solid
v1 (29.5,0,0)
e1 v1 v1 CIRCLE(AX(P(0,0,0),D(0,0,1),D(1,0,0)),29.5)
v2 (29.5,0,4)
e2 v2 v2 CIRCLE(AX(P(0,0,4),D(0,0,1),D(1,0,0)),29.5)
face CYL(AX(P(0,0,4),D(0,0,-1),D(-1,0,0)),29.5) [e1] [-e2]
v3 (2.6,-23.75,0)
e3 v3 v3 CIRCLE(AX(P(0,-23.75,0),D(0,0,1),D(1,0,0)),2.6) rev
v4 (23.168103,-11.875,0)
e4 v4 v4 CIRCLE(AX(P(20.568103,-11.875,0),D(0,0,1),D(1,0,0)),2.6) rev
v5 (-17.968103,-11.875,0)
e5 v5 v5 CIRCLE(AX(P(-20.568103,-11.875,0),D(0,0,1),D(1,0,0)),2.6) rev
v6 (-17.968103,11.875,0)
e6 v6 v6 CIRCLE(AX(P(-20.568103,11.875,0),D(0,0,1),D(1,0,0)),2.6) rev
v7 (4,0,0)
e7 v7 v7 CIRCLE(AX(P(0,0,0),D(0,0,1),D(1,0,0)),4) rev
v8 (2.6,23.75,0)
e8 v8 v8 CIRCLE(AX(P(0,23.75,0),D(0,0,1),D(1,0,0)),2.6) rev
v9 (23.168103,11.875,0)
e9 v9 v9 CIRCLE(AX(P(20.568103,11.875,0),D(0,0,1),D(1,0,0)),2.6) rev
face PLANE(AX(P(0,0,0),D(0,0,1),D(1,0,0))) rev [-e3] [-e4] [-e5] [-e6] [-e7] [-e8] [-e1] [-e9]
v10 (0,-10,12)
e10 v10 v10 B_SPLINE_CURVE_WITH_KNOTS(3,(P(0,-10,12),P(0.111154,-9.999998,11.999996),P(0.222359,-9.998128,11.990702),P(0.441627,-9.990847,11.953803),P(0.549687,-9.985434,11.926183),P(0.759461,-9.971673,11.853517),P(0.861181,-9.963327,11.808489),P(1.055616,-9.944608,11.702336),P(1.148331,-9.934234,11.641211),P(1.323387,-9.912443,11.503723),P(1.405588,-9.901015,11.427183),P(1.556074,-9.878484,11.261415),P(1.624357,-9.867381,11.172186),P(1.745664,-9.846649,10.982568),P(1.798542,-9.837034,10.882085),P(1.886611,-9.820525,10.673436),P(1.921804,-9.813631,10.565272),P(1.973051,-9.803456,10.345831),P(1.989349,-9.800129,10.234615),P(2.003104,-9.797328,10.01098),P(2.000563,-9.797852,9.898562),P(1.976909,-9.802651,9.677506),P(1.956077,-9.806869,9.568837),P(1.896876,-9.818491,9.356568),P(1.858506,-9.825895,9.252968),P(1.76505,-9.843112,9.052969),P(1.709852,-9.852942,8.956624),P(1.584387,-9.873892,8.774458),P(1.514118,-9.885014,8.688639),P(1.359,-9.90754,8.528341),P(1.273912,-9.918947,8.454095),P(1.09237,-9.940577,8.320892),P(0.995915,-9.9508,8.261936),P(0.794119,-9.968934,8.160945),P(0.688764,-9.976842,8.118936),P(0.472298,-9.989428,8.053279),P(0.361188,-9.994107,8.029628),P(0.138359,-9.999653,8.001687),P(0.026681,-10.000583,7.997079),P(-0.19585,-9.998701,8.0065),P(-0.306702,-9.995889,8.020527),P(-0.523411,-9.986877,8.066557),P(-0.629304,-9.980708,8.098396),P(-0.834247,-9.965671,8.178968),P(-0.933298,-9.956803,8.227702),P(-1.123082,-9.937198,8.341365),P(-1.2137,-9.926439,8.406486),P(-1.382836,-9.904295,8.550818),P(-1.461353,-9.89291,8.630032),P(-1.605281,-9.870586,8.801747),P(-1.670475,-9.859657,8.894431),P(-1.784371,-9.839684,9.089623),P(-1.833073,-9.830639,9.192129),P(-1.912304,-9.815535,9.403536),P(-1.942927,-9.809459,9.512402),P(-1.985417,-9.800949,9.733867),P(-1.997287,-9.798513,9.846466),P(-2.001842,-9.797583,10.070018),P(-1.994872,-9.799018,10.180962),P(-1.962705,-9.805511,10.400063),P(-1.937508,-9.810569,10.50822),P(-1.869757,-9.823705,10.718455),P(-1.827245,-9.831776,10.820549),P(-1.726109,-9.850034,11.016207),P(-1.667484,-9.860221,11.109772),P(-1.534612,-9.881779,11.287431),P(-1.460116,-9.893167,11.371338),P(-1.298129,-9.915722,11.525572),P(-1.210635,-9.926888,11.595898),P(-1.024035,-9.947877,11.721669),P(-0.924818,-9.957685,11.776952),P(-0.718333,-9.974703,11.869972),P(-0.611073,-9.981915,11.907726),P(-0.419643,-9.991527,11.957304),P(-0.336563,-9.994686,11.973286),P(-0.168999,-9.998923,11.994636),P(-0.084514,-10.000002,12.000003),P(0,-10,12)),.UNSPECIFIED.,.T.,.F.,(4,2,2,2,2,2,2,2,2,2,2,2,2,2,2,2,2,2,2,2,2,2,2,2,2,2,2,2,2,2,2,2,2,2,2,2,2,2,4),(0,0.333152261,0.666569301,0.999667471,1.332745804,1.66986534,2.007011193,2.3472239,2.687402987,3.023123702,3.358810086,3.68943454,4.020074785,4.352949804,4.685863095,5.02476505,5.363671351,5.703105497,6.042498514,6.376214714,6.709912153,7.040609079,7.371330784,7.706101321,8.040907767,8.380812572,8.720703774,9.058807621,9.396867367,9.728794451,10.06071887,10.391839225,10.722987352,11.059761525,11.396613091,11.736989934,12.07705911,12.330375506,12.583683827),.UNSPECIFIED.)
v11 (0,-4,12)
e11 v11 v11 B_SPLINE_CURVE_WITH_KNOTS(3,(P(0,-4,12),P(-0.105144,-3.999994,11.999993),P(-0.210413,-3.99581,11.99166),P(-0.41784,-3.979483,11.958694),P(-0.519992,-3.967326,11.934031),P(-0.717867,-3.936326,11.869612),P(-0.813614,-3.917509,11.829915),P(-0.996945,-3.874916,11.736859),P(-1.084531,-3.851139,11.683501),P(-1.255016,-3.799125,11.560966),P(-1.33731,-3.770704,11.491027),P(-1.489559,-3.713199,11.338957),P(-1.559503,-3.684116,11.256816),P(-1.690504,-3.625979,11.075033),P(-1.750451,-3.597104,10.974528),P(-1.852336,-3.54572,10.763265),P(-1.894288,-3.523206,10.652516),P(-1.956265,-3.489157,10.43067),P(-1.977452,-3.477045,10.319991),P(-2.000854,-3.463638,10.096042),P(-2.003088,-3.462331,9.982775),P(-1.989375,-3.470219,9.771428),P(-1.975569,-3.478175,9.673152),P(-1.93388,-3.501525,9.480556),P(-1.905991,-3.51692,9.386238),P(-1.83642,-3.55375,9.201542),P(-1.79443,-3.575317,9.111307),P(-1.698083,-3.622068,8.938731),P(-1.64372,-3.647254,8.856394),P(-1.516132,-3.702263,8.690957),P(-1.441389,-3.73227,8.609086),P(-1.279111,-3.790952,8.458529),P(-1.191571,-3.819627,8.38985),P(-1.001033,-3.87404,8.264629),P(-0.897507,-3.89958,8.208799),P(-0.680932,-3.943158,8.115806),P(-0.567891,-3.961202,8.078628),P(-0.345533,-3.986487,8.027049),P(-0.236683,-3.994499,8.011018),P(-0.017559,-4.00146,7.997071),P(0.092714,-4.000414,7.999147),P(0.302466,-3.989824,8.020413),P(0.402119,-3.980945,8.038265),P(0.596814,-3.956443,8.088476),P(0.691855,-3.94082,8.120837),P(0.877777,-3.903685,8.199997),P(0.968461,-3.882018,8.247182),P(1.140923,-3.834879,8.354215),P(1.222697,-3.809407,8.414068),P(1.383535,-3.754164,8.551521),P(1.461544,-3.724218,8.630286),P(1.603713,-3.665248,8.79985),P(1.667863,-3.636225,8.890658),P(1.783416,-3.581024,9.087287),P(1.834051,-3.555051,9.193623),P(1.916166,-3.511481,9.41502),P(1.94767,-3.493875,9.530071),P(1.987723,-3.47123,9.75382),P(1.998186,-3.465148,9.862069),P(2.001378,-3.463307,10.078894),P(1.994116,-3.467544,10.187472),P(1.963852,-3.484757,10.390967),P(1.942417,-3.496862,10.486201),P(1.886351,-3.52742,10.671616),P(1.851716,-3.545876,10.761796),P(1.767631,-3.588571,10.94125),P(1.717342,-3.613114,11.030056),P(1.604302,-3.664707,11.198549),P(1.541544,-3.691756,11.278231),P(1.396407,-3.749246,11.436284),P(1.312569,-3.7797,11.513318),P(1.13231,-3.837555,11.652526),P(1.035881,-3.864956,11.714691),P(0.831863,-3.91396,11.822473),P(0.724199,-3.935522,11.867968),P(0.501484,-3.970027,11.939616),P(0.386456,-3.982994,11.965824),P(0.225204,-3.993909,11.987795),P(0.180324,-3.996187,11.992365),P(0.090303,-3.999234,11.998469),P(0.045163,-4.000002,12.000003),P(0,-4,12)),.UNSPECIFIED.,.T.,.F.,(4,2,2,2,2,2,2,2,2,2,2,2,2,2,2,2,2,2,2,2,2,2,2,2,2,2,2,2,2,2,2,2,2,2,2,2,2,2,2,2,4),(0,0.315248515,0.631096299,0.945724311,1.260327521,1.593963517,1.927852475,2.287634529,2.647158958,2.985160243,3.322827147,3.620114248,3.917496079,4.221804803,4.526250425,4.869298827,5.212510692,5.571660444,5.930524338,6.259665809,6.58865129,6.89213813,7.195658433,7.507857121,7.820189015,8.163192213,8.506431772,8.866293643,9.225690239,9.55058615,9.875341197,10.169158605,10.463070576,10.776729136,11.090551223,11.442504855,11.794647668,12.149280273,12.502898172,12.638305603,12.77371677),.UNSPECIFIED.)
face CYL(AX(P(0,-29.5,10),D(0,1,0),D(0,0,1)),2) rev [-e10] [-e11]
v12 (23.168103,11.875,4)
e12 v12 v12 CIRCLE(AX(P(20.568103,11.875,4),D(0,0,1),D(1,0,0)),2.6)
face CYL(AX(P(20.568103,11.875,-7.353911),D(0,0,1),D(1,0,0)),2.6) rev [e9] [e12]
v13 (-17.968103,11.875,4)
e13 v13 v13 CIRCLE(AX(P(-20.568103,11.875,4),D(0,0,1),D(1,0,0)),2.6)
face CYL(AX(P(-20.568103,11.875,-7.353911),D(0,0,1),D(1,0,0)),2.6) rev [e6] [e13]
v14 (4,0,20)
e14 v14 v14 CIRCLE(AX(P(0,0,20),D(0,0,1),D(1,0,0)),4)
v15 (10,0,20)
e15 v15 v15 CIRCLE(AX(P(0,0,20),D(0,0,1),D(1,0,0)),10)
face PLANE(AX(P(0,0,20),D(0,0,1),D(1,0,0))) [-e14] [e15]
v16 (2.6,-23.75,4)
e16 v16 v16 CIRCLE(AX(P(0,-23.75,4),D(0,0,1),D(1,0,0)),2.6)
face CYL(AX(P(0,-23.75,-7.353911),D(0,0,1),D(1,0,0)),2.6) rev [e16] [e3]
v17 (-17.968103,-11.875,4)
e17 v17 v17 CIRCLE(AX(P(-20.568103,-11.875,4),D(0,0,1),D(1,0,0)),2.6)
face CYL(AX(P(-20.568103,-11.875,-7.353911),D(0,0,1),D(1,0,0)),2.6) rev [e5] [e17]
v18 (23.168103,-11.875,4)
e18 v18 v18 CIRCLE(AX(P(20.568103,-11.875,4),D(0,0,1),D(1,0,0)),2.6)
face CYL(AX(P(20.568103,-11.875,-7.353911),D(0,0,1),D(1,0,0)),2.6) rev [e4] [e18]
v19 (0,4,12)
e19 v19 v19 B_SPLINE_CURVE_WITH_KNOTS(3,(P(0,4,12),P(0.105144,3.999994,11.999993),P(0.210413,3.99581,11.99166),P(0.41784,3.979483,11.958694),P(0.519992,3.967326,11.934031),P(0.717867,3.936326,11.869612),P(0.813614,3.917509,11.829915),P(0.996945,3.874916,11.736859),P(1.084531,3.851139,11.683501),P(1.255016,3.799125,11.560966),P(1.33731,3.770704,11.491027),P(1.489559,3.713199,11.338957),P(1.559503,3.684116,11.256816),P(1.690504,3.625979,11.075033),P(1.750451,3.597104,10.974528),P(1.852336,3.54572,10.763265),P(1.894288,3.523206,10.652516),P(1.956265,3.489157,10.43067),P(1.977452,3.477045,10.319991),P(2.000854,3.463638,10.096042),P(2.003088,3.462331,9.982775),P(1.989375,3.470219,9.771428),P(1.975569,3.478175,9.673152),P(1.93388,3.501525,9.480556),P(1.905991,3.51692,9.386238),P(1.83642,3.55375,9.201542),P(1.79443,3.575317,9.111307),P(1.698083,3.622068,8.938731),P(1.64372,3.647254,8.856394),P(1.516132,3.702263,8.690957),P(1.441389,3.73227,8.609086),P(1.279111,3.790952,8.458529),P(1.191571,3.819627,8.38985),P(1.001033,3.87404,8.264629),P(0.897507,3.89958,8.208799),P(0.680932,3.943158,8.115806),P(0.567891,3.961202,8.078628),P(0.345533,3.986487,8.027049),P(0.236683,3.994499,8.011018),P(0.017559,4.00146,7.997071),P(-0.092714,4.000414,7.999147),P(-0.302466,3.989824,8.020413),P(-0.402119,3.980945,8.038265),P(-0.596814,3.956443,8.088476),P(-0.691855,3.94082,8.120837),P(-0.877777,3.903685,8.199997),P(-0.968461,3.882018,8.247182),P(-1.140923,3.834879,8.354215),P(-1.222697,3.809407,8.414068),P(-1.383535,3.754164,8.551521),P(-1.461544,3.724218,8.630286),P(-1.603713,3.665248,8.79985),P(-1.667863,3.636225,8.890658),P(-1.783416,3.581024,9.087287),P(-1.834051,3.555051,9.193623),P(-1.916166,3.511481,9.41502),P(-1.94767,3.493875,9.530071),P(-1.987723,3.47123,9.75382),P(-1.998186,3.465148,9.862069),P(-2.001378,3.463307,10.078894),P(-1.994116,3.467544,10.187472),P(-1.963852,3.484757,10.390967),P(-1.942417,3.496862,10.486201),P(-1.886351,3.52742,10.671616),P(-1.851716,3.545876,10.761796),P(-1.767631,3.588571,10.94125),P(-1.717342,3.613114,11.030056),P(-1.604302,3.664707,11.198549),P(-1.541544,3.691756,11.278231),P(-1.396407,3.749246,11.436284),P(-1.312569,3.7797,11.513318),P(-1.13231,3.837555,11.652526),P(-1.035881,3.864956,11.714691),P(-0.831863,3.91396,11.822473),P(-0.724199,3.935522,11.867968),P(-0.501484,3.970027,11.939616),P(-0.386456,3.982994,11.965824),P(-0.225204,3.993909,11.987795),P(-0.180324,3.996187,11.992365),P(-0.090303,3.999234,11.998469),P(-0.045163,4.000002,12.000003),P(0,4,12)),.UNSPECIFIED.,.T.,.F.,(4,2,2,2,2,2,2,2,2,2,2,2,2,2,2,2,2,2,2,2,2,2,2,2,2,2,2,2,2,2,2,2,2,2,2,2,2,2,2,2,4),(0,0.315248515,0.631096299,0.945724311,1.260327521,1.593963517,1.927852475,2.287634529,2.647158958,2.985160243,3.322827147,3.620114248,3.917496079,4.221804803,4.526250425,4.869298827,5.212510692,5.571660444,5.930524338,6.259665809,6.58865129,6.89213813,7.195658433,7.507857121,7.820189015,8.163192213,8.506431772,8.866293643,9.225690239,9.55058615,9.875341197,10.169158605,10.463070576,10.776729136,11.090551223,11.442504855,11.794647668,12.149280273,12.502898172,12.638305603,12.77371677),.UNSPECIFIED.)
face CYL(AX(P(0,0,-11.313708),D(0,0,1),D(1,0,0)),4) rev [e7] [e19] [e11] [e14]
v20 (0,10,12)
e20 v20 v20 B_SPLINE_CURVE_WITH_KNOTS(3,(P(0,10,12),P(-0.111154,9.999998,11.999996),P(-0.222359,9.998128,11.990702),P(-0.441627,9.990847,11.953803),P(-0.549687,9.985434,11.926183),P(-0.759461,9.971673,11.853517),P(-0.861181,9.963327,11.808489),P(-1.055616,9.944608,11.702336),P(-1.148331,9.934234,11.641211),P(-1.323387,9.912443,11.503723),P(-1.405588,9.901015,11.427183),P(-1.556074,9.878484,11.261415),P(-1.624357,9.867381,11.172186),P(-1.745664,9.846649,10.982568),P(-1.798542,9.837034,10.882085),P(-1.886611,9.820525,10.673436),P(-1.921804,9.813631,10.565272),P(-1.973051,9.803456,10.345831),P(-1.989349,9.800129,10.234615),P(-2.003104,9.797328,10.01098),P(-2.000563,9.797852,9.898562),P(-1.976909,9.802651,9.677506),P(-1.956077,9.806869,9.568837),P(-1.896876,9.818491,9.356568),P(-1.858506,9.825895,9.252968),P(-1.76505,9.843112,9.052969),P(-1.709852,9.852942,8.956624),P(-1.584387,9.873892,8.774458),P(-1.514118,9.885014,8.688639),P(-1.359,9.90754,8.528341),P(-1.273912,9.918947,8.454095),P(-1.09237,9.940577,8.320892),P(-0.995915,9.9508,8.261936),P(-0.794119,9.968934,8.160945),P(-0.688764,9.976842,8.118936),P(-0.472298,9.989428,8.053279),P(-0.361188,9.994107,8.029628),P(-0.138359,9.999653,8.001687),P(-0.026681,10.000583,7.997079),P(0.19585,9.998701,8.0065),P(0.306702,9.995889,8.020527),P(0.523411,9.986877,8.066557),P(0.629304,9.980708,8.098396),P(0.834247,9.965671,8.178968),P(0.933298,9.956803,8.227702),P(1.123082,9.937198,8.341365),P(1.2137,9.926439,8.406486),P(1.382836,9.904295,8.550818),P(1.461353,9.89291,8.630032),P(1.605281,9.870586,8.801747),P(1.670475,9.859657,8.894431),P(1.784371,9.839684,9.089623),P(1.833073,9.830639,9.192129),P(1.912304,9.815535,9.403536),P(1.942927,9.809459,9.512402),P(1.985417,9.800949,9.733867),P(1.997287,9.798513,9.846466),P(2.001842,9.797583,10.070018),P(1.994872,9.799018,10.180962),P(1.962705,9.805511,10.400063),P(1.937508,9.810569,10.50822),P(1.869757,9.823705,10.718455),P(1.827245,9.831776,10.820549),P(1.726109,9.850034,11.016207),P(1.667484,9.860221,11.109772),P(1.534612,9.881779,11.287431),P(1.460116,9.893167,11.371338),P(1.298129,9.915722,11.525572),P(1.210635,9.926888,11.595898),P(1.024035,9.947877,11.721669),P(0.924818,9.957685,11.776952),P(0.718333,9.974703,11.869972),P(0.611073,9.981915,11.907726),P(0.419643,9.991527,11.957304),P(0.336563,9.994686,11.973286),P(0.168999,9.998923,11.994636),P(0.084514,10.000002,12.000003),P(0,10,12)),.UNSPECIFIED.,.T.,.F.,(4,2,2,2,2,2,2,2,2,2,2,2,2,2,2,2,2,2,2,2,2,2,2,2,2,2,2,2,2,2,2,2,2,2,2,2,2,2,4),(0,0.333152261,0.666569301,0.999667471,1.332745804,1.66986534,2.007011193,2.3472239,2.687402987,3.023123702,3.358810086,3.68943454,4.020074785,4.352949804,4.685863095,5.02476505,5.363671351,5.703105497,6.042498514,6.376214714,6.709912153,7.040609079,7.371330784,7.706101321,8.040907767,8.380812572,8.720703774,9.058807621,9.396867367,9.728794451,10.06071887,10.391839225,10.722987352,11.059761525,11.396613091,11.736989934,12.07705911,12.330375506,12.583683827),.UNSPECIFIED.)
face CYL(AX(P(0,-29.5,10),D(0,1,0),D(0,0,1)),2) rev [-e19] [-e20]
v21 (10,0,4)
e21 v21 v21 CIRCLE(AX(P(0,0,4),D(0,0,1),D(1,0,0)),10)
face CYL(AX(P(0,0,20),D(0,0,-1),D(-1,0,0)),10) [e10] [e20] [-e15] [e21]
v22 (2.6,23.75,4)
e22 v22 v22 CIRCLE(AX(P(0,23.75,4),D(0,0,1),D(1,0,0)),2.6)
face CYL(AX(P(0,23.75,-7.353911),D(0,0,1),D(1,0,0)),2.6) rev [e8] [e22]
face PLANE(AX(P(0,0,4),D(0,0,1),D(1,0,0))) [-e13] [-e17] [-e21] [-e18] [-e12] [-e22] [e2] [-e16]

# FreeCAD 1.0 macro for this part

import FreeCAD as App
import Part
import Sketcher

V = App.Vector

doc = App.newDocument("Part")
params = doc.addObject("Spreadsheet::Sheet", "Params")
for row, (alias, value) in enumerate([
    ("sketch1_diameter", "59 mm"),
    ("pad1_length", "4 mm"),
    ("sketch2_diameter", "20 mm"),
    ("pad2_length", "16 mm"),
    ("sketch3_diameter", "8 mm"),
    ("pocket1_length", "20 mm"),
    ("sketch4_diameter", "5.2 mm"),
    ("pocket2_length", "4 mm"),
    ("sketch5_diameter", "4 mm"),
], start=1):
    params.set(f"A{row}", alias)
    params.set(f"B{row}", "=" + value)
    params.setAlias(f"B{row}", alias)

body = doc.addObject("PartDesign::Body", "Body")

# Sketch on XY plane
sketch1 = doc.addObject("Sketcher::SketchObject", "Sketch")
body.addObject(sketch1)
sketch1.AttachmentSupport = (doc.XY_Plane, [""])
sketch1.MapMode = "FlatFace"
sketch1.addGeometry(Part.Circle(V(0, 0, 0), V(0, 0, 1), 29.5), False)
sketch1.addConstraint(Sketcher.Constraint("Coincident", 0, 3, -1, 1))
sketch1.addConstraint(Sketcher.Constraint("Diameter", 0, 59.0))
sketch1.setExpression("Constraints[1]", "Params.sketch1_diameter")
pad1 = doc.addObject("PartDesign::Pad", "Pad")
body.addObject(pad1)
pad1.Profile = sketch1
pad1.setExpression("Length", "Params.pad1_length")

# Sketch on XY plane
sketch2 = doc.addObject("Sketcher::SketchObject", "Sketch001")
body.addObject(sketch2)
sketch2.AttachmentSupport = (doc.XY_Plane, [""])
sketch2.MapMode = "FlatFace"
sketch2.AttachmentOffset = App.Placement(V(0, 0, 4), App.Rotation())
sketch2.addGeometry(Part.Circle(V(0, 0, 0), V(0, 0, 1), 10), False)
sketch2.addConstraint(Sketcher.Constraint("Coincident", 0, 3, -1, 1))
sketch2.addConstraint(Sketcher.Constraint("Diameter", 0, 20.0))
sketch2.setExpression("Constraints[1]", "Params.sketch2_diameter")
pad2 = doc.addObject("PartDesign::Pad", "Pad001")
body.addObject(pad2)
pad2.Profile = sketch2
pad2.setExpression("Length", "Params.pad2_length")

# Sketch on XY plane
sketch3 = doc.addObject("Sketcher::SketchObject", "Sketch002")
body.addObject(sketch3)
sketch3.AttachmentSupport = (doc.XY_Plane, [""])
sketch3.MapMode = "FlatFace"
sketch3.AttachmentOffset = App.Placement(V(0, 0, 20), App.Rotation())
sketch3.addGeometry(Part.Circle(V(0, 0, 0), V(0, 0, 1), 4), False)
sketch3.addConstraint(Sketcher.Constraint("Coincident", 0, 3, -1, 1))
sketch3.addConstraint(Sketcher.Constraint("Diameter", 0, 8.0))
sketch3.setExpression("Constraints[1]", "Params.sketch3_diameter")
pocket1 = doc.addObject("PartDesign::Pocket", "Pocket")
body.addObject(pocket1)
pocket1.Profile = sketch3
pocket1.setExpression("Length", "Params.pocket1_length")

# Sketch on XY plane
sketch4 = doc.addObject("Sketcher::SketchObject", "Sketch003")
body.addObject(sketch4)
sketch4.AttachmentSupport = (doc.XY_Plane, [""])
sketch4.MapMode = "FlatFace"
sketch4.AttachmentOffset = App.Placement(V(0, 0, 4), App.Rotation())
sketch4.addGeometry(Part.Circle(V(0, 23.75, 0), V(0, 0, 1), 2.6), False)
sketch4.addGeometry(Part.Circle(V(20.568103, 11.875, 0), V(0, 0, 1), 2.6), False)
sketch4.addGeometry(Part.Circle(V(20.568103, -11.875, 0), V(0, 0, 1), 2.6), False)
sketch4.addGeometry(Part.Circle(V(0, -23.75, 0), V(0, 0, 1), 2.6), False)
sketch4.addGeometry(Part.Circle(V(-20.568103, -11.875, 0), V(0, 0, 1), 2.6), False)
sketch4.addGeometry(Part.Circle(V(-20.568103, 11.875, 0), V(0, 0, 1), 2.6), False)
sketch4.addConstraint(Sketcher.Constraint("Equal", 0, 1))
sketch4.addConstraint(Sketcher.Constraint("Equal", 1, 2))
sketch4.addConstraint(Sketcher.Constraint("Equal", 2, 3))
sketch4.addConstraint(Sketcher.Constraint("Equal", 3, 4))
sketch4.addConstraint(Sketcher.Constraint("Equal", 4, 5))
sketch4.addConstraint(Sketcher.Constraint("Symmetric", 0, 3, 3, 3, -1, 1))
sketch4.addConstraint(Sketcher.Constraint("Symmetric", 1, 3, 4, 3, -1, 1))
sketch4.addConstraint(Sketcher.Constraint("Symmetric", 2, 3, 5, 3, -1, 1))
sketch4.addConstraint(Sketcher.Constraint("Symmetric", 2, 3, 4, 3, -2))
sketch4.addConstraint(Sketcher.Constraint("PointOnObject", 0, 3, -2))
sketch4.addConstraint(Sketcher.Constraint("Diameter", 0, 5.2))
sketch4.addConstraint(Sketcher.Constraint("DistanceY", 3, 3, 0, 3, 47.5))
sketch4.addConstraint(Sketcher.Constraint("DistanceY", 2, 3, 1, 3, 23.75))
sketch4.addConstraint(Sketcher.Constraint("DistanceX", -1, 1, 1, 3, 20.568103))
sketch4.setExpression("Constraints[10]", "Params.sketch4_diameter")
pocket2 = doc.addObject("PartDesign::Pocket", "Pocket001")
body.addObject(pocket2)
pocket2.Profile = sketch4
pocket2.setExpression("Length", "Params.pocket2_length")

# Sketch on XZ plane
sketch5 = doc.addObject("Sketcher::SketchObject", "Sketch004")
body.addObject(sketch5)
sketch5.AttachmentSupport = (doc.XZ_Plane, [""])
sketch5.MapMode = "FlatFace"
sketch5.addGeometry(Part.Circle(V(0, 10, 0), V(0, 0, 1), 2), False)
sketch5.addConstraint(Sketcher.Constraint("PointOnObject", 0, 3, -2))
sketch5.addConstraint(Sketcher.Constraint("Diameter", 0, 4.0))
sketch5.addConstraint(Sketcher.Constraint("DistanceY", -1, 1, 0, 3, 10.0))
sketch5.setExpression("Constraints[1]", "Params.sketch5_diameter")
pocket3 = doc.addObject("PartDesign::Pocket", "Pocket002")
body.addObject(pocket3)
pocket3.Profile = sketch5
pocket3.Type = "ThroughAll"
pocket3.Midplane = True

doc.recompute()
